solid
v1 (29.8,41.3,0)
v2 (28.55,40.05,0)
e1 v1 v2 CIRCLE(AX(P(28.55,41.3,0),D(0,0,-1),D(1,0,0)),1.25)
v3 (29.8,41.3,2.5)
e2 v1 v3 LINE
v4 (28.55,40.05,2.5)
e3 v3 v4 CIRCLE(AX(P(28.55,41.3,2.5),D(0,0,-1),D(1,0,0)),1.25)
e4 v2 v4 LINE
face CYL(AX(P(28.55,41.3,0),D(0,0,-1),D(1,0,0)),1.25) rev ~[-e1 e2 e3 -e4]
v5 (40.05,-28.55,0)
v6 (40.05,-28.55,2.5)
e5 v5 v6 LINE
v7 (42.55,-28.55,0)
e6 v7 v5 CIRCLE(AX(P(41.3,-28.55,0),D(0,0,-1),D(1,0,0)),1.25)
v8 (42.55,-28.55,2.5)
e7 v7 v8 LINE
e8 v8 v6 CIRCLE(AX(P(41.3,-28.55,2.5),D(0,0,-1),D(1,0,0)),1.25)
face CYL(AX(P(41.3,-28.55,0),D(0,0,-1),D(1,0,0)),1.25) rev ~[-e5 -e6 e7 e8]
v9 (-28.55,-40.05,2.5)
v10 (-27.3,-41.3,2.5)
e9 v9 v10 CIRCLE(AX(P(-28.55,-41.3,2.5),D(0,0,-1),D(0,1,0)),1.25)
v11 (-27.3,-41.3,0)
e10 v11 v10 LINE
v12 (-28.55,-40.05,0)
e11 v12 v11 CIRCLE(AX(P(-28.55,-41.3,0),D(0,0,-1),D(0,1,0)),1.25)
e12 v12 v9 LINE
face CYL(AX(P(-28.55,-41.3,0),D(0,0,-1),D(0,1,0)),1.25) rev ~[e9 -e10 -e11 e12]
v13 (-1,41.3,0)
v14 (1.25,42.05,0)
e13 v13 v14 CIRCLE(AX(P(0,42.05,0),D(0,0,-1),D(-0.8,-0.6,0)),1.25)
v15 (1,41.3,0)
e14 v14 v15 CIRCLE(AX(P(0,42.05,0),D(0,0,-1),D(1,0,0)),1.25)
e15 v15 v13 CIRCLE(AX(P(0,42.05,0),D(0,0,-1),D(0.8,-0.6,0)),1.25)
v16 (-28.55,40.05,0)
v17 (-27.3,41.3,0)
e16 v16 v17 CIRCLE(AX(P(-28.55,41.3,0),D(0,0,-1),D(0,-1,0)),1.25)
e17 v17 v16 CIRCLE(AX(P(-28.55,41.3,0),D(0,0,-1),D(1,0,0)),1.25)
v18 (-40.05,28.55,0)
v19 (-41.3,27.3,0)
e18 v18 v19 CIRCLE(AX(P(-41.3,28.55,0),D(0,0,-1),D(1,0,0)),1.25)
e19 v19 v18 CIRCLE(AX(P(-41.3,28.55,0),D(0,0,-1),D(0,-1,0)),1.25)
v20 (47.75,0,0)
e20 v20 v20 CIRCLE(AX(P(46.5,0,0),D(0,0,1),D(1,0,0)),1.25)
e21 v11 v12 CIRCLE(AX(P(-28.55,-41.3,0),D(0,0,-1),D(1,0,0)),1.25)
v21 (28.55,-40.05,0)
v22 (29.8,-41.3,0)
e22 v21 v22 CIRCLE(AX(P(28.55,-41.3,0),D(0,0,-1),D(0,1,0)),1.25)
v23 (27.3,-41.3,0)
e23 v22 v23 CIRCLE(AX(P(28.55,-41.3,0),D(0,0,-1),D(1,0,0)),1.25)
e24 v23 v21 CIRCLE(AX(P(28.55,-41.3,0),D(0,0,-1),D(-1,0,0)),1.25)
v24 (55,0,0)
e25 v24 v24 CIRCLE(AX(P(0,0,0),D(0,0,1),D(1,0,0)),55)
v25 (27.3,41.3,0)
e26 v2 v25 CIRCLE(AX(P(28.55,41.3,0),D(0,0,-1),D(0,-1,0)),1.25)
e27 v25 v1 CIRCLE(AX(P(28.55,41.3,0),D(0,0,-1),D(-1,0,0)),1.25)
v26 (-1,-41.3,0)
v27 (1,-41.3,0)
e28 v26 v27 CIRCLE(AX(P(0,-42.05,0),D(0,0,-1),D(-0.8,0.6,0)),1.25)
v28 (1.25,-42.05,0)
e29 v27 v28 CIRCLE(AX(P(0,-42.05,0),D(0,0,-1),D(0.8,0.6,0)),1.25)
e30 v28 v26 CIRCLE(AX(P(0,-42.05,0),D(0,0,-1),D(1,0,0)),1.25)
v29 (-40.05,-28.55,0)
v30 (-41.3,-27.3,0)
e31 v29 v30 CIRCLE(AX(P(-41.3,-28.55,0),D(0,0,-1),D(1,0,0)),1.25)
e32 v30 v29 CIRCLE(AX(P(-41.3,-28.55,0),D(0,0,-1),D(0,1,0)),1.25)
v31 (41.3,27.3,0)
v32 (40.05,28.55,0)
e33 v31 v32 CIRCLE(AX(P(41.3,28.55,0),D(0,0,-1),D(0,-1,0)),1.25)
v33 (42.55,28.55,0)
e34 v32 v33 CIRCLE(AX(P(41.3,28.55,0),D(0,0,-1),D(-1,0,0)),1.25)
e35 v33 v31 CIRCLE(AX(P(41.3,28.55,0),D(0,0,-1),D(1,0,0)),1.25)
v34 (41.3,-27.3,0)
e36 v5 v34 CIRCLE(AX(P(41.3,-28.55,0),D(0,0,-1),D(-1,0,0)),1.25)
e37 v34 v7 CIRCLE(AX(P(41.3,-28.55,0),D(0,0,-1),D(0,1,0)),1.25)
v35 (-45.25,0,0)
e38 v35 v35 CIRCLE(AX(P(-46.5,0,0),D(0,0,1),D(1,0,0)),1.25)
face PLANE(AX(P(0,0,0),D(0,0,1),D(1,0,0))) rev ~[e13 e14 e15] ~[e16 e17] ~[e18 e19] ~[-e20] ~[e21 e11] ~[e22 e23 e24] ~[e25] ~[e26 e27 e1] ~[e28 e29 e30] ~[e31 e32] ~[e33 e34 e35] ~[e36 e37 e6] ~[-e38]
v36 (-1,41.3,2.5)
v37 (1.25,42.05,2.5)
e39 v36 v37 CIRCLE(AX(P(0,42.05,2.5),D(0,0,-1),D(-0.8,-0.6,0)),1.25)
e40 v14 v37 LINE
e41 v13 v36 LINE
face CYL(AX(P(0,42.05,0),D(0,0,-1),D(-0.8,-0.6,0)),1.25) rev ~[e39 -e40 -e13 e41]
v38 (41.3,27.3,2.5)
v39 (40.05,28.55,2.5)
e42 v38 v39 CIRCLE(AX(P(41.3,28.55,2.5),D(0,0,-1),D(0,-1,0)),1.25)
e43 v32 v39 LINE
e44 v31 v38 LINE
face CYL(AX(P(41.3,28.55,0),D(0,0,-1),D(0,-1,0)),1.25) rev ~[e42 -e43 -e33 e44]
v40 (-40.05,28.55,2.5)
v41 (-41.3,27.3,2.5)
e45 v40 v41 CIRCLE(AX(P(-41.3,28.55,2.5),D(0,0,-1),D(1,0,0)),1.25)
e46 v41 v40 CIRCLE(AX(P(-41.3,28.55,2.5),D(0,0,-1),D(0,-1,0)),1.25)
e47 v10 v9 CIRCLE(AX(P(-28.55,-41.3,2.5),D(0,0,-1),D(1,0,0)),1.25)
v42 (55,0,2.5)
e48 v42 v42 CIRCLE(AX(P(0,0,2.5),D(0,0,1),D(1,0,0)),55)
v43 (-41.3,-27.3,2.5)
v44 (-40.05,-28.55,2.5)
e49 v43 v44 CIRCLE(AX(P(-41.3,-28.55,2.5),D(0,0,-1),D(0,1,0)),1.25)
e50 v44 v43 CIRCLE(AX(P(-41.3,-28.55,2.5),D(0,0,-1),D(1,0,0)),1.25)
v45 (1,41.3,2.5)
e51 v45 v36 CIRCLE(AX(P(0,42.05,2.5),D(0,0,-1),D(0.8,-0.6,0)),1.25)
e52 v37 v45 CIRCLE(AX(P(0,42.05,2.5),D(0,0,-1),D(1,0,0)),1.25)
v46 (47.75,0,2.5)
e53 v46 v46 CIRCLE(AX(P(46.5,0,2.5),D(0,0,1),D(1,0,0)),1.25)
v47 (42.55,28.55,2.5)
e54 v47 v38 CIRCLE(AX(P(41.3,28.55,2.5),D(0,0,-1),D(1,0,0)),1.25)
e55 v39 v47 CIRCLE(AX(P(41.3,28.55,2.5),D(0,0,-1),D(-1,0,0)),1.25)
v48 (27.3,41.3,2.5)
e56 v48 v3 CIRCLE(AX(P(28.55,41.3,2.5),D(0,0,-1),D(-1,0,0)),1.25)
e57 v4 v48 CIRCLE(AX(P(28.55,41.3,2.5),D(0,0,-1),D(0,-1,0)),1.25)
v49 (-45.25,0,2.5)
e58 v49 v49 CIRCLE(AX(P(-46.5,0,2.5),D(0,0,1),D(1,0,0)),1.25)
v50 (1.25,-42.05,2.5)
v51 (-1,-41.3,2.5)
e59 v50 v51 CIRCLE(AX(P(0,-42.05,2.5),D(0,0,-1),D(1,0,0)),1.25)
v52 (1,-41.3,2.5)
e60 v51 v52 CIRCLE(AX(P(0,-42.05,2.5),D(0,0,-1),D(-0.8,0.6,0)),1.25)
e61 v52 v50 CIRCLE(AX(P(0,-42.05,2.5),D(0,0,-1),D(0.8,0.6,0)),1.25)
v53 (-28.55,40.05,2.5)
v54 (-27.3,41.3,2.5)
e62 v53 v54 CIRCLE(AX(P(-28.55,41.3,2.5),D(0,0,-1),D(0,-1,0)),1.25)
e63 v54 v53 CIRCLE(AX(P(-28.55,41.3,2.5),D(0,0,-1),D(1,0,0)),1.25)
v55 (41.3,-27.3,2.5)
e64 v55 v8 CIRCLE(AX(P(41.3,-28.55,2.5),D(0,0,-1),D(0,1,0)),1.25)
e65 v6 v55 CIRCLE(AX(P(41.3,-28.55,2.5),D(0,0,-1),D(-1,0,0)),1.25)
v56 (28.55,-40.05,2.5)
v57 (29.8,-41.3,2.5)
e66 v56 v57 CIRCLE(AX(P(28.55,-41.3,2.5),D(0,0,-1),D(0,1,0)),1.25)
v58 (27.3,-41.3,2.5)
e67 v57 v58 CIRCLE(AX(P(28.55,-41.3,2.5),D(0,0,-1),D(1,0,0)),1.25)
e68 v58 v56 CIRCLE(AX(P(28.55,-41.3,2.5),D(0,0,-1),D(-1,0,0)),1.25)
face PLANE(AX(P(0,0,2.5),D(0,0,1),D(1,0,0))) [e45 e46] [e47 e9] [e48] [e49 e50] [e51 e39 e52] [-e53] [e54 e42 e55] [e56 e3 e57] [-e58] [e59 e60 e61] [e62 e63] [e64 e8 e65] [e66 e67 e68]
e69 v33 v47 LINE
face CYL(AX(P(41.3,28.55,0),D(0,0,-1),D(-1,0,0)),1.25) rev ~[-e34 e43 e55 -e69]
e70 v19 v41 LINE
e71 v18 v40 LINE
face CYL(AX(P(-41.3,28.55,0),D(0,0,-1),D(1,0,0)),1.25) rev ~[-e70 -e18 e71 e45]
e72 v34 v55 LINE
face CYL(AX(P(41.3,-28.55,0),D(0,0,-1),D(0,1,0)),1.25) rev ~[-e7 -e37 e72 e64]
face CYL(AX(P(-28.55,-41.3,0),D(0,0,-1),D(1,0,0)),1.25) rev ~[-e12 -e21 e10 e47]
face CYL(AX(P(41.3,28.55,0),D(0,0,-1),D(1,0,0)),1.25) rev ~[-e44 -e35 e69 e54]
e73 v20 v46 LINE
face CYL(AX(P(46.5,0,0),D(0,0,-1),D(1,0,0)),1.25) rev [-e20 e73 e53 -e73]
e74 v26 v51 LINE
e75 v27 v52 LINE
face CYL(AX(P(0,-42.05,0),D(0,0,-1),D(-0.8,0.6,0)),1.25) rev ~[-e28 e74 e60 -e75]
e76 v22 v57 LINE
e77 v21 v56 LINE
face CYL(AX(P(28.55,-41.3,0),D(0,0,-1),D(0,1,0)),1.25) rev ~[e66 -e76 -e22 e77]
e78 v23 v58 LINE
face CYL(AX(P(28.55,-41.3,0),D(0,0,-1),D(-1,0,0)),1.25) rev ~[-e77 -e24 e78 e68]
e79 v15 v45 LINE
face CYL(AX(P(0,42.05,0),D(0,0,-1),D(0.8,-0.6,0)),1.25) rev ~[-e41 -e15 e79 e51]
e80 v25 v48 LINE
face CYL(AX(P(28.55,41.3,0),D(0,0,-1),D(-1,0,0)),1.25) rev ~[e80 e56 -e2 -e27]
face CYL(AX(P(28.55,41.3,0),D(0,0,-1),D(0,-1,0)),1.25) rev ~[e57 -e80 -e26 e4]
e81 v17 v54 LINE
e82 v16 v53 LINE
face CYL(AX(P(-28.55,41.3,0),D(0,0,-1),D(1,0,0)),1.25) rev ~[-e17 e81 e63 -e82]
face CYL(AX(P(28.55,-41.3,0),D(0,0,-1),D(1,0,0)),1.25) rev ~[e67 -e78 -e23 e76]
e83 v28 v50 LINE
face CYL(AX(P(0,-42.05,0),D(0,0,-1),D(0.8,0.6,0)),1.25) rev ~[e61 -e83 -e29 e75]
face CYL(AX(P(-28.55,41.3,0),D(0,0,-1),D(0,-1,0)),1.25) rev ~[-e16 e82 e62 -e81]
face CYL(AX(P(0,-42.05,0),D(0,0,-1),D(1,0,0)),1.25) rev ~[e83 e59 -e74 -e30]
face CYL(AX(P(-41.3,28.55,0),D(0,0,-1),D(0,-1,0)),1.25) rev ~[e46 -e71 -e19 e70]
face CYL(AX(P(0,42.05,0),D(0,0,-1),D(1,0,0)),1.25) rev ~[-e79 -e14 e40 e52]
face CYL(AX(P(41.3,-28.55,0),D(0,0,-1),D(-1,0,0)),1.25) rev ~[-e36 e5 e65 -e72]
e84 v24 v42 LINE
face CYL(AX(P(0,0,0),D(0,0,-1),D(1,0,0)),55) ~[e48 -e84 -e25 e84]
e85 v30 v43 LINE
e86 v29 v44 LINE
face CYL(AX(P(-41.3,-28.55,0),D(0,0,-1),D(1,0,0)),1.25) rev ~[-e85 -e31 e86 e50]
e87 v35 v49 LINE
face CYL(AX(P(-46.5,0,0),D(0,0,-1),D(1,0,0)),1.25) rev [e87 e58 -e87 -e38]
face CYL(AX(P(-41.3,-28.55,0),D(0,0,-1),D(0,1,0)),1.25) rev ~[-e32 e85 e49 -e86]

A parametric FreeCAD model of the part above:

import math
import FreeCAD as App
import Part
import Sketcher

V = App.Vector
Q = App.Units.Quantity

doc = App.newDocument("Part")
body = doc.addObject("PartDesign::Body", "Body")

# Sketch on XY plane
sketch1 = body.newObject("Sketcher::SketchObject", "Sketch")
sketch1.AttachmentSupport = (doc.getObject("XY_Plane"), [""])
sketch1.MapMode = "FlatFace"
sketch1.addGeometry(Part.Circle(V(0, 0, 0), V(0, 0, 1), 55), False)
sketch1.addGeometry(Part.ArcOfCircle(Part.Circle(V(-41.3, -28.55, 0), V(0, 0, 1), 1.25), math.radians(90), math.radians(360)), False)
sketch1.addGeometry(Part.ArcOfCircle(Part.Circle(V(-41.3, -28.55, 0), V(0, 0, 1), 1.25), math.radians(0), math.radians(90)), False)
sketch1.addGeometry(Part.ArcOfCircle(Part.Circle(V(-28.55, -41.3, 0), V(0, 0, 1), 1.25), math.radians(90), math.radians(360)), False)
sketch1.addGeometry(Part.ArcOfCircle(Part.Circle(V(-28.55, -41.3, 0), V(0, 0, 1), 1.25), math.radians(0), math.radians(90)), False)
sketch1.addGeometry(Part.ArcOfCircle(Part.Circle(V(0, -42.05, 0), V(0, 0, 1), 1.25), math.radians(143.130102), math.radians(360)), False)
sketch1.addGeometry(Part.ArcOfCircle(Part.Circle(V(0, -42.05, 0), V(0, 0, 1), 1.25), math.radians(36.869898), math.radians(143.130102)), False)
sketch1.addGeometry(Part.ArcOfCircle(Part.Circle(V(0, -42.05, 0), V(0, 0, 1), 1.25), math.radians(0), math.radians(36.869898)), False)
sketch1.addGeometry(Part.ArcOfCircle(Part.Circle(V(28.55, -41.3, 0), V(0, 0, 1), 1.25), math.radians(180), math.radians(360)), False)
sketch1.addGeometry(Part.ArcOfCircle(Part.Circle(V(28.55, -41.3, 0), V(0, 0, 1), 1.25), math.radians(90), math.radians(180)), False)
sketch1.addGeometry(Part.ArcOfCircle(Part.Circle(V(28.55, -41.3, 0), V(0, 0, 1), 1.25), math.radians(0), math.radians(90)), False)
sketch1.addGeometry(Part.Circle(V(-46.5, 0, 0), V(0, 0, 1), 1.25), False)
sketch1.addGeometry(Part.ArcOfCircle(Part.Circle(V(-41.3, 28.55, 0), V(0, 0, 1), 1.25), math.radians(0), math.radians(270)), False)
sketch1.addGeometry(Part.ArcOfCircle(Part.Circle(V(-41.3, 28.55, 0), V(0, 0, 1), 1.25), math.radians(-90), math.radians(0)), False)
sketch1.addGeometry(Part.ArcOfCircle(Part.Circle(V(-28.55, 41.3, 0), V(0, 0, 1), 1.25), math.radians(0), math.radians(270)), False)
sketch1.addGeometry(Part.ArcOfCircle(Part.Circle(V(-28.55, 41.3, 0), V(0, 0, 1), 1.25), math.radians(-90), math.radians(0)), False)
sketch1.addGeometry(Part.ArcOfCircle(Part.Circle(V(0, 42.05, 0), V(0, 0, 1), 1.25), math.radians(0), math.radians(216.869898)), False)
sketch1.addGeometry(Part.ArcOfCircle(Part.Circle(V(0, 42.05, 0), V(0, 0, 1), 1.25), math.radians(-36.869898), math.radians(0)), False)
sketch1.addGeometry(Part.ArcOfCircle(Part.Circle(V(0, 42.05, 0), V(0, 0, 1), 1.25), math.radians(-143.130102), math.radians(-36.869898)), False)
sketch1.addGeometry(Part.ArcOfCircle(Part.Circle(V(41.3, 28.55, 0), V(0, 0, 1), 1.25), math.radians(0), math.radians(180)), False)
sketch1.addGeometry(Part.ArcOfCircle(Part.Circle(V(41.3, 28.55, 0), V(0, 0, 1), 1.25), math.radians(-90), math.radians(0)), False)
sketch1.addGeometry(Part.ArcOfCircle(Part.Circle(V(41.3, 28.55, 0), V(0, 0, 1), 1.25), math.radians(180), math.radians(270)), False)
sketch1.addGeometry(Part.ArcOfCircle(Part.Circle(V(41.3, -28.55, 0), V(0, 0, 1), 1.25), math.radians(0), math.radians(90)), False)
sketch1.addGeometry(Part.ArcOfCircle(Part.Circle(V(41.3, -28.55, 0), V(0, 0, 1), 1.25), math.radians(180), math.radians(360)), False)
sketch1.addGeometry(Part.ArcOfCircle(Part.Circle(V(41.3, -28.55, 0), V(0, 0, 1), 1.25), math.radians(90), math.radians(180)), False)
sketch1.addGeometry(Part.Circle(V(46.5, 0, 0), V(0, 0, 1), 1.25), False)
sketch1.addGeometry(Part.ArcOfCircle(Part.Circle(V(28.55, 41.3, 0), V(0, 0, 1), 1.25), math.radians(-90), math.radians(0)), False)
sketch1.addGeometry(Part.ArcOfCircle(Part.Circle(V(28.55, 41.3, 0), V(0, 0, 1), 1.25), math.radians(180), math.radians(270)), False)
sketch1.addGeometry(Part.ArcOfCircle(Part.Circle(V(28.55, 41.3, 0), V(0, 0, 1), 1.25), math.radians(0), math.radians(180)), False)
sketch1.addConstraint(Sketcher.Constraint("Tangent", 1, 1, 2, 2))
sketch1.addConstraint(Sketcher.Constraint("Coincident", 2, 1, 1, 2))
sketch1.addConstraint(Sketcher.Constraint("Tangent", 3, 1, 4, 2))
sketch1.addConstraint(Sketcher.Constraint("Coincident", 4, 1, 3, 2))
sketch1.addConstraint(Sketcher.Constraint("Tangent", 5, 1, 6, 2))
sketch1.addConstraint(Sketcher.Constraint("Tangent", 6, 1, 7, 2))
sketch1.addConstraint(Sketcher.Constraint("Tangent", 7, 1, 5, 2))
sketch1.addConstraint(Sketcher.Constraint("Tangent", 8, 1, 9, 2))
sketch1.addConstraint(Sketcher.Constraint("Tangent", 9, 1, 10, 2))
sketch1.addConstraint(Sketcher.Constraint("Tangent", 10, 1, 8, 2))
sketch1.addConstraint(Sketcher.Constraint("Tangent", 12, 1, 13, 2))
sketch1.addConstraint(Sketcher.Constraint("Coincident", 13, 1, 12, 2))
sketch1.addConstraint(Sketcher.Constraint("Tangent", 14, 1, 15, 2))
sketch1.addConstraint(Sketcher.Constraint("Coincident", 15, 1, 14, 2))
sketch1.addConstraint(Sketcher.Constraint("Tangent", 16, 1, 17, 2))
sketch1.addConstraint(Sketcher.Constraint("Tangent", 17, 1, 18, 2))
sketch1.addConstraint(Sketcher.Constraint("Tangent", 18, 1, 16, 2))
sketch1.addConstraint(Sketcher.Constraint("Tangent", 19, 1, 20, 2))
sketch1.addConstraint(Sketcher.Constraint("Tangent", 20, 1, 21, 2))
sketch1.addConstraint(Sketcher.Constraint("Tangent", 21, 1, 19, 2))
sketch1.addConstraint(Sketcher.Constraint("Tangent", 22, 1, 23, 2))
sketch1.addConstraint(Sketcher.Constraint("Tangent", 23, 1, 24, 2))
sketch1.addConstraint(Sketcher.Constraint("Tangent", 24, 1, 22, 2))
sketch1.addConstraint(Sketcher.Constraint("Tangent", 26, 1, 27, 2))
sketch1.addConstraint(Sketcher.Constraint("Tangent", 27, 1, 28, 2))
sketch1.addConstraint(Sketcher.Constraint("Tangent", 28, 1, 26, 2))
sketch1.addConstraint(Sketcher.Constraint("Coincident", 0, 3, -1, 1))
sketch1.addConstraint(Sketcher.Constraint("Equal", 2, 3))
sketch1.addConstraint(Sketcher.Constraint("Equal", 4, 5))
sketch1.addConstraint(Sketcher.Constraint("Equal", 7, 8))
sketch1.addConstraint(Sketcher.Constraint("Equal", 10, 11))
sketch1.addConstraint(Sketcher.Constraint("Equal", 11, 12))
sketch1.addConstraint(Sketcher.Constraint("Equal", 13, 14))
sketch1.addConstraint(Sketcher.Constraint("Equal", 15, 16))
sketch1.addConstraint(Sketcher.Constraint("Equal", 18, 19))
sketch1.addConstraint(Sketcher.Constraint("Equal", 21, 22))
sketch1.addConstraint(Sketcher.Constraint("Equal", 24, 25))
sketch1.addConstraint(Sketcher.Constraint("Equal", 25, 26))
sketch1.addConstraint(Sketcher.Constraint("Symmetric", 8, 3, 14, 3, -1, 1))
sketch1.addConstraint(Sketcher.Constraint("Symmetric", 5, 3, 16, 3, -1, 1))
sketch1.addConstraint(Sketcher.Constraint("Symmetric", 1, 3, 19, 3, -1, 1))
sketch1.addConstraint(Sketcher.Constraint("Symmetric", 12, 3, 22, 3, -1, 1))
sketch1.addConstraint(Sketcher.Constraint("Symmetric", 11, 3, 25, 3, -1, 1))
sketch1.addConstraint(Sketcher.Constraint("Symmetric", 3, 3, 26, 3, -1, 1))
sketch1.addConstraint(Sketcher.Constraint("Symmetric", 3, 3, 8, 3, -2))
sketch1.addConstraint(Sketcher.Constraint("Symmetric", 12, 3, 19, 3, -2))
sketch1.addConstraint(Sketcher.Constraint("Symmetric", 5, 1, 6, 1, -2))
sketch1.addConstraint(Sketcher.Constraint("PointOnObject", 11, 3, -1))
sketch1.addConstraint(Sketcher.Constraint("Horizontal", 24, 3, 2, 1))
sketch1.addConstraint(Sketcher.Constraint("Horizontal", 10, 3, 4, 1))
sketch1.addConstraint(Sketcher.Constraint("Horizontal", 4, 1, 5, 1))
sketch1.addConstraint(Sketcher.Constraint("Horizontal", 6, 3, 7, 1))
sketch1.addConstraint(Sketcher.Constraint("Horizontal", 6, 1, 8, 1))
sketch1.addConstraint(Sketcher.Constraint("Horizontal", 8, 1, 10, 1))
sketch1.addConstraint(Sketcher.Constraint("Horizontal", 21, 3, 12, 1))
sketch1.addConstraint(Sketcher.Constraint("Horizontal", 28, 3, 14, 1))
sketch1.addConstraint(Sketcher.Constraint("Horizontal", 18, 3, 16, 1))
sketch1.addConstraint(Sketcher.Constraint("Horizontal", 14, 1, 17, 1))
sketch1.addConstraint(Sketcher.Constraint("Horizontal", 17, 1, 18, 1))
sketch1.addConstraint(Sketcher.Constraint("Horizontal", 12, 1, 19, 1))
sketch1.addConstraint(Sketcher.Constraint("Horizontal", 19, 1, 21, 1))
sketch1.addConstraint(Sketcher.Constraint("Horizontal", 2, 1, 22, 1))
sketch1.addConstraint(Sketcher.Constraint("Horizontal", 22, 1, 23, 1))
sketch1.addConstraint(Sketcher.Constraint("Horizontal", 18, 1, 27, 1))
sketch1.addConstraint(Sketcher.Constraint("Horizontal", 27, 1, 28, 1))
sketch1.addConstraint(Sketcher.Constraint("Vertical", 13, 3, 1, 1))
sketch1.addConstraint(Sketcher.Constraint("Vertical", 15, 3, 3, 1))
sketch1.addConstraint(Sketcher.Constraint("Vertical", 28, 3, 9, 1))
sketch1.addConstraint(Sketcher.Constraint("Vertical", 1, 1, 13, 1))
sketch1.addConstraint(Sketcher.Constraint("Vertical", 3, 1, 15, 1))
sketch1.addConstraint(Sketcher.Constraint("Vertical", 24, 3, 20, 1))
sketch1.addConstraint(Sketcher.Constraint("Vertical", 20, 1, 24, 1))
sketch1.addConstraint(Sketcher.Constraint("Vertical", 9, 1, 26, 1))
sketch1.addConstraint(Sketcher.Constraint("Diameter", 0, Q("110 mm")))
sketch1.addConstraint(Sketcher.Constraint("Diameter", 11, Q("2.5 mm")))
sketch1.addConstraint(Sketcher.Constraint("DistanceX", 5, 1, -1, 1, Q("1 mm")))
sketch1.addConstraint(Sketcher.Constraint("DistanceY", 3, 3, 1, 1, Q("14 mm")))
sketch1.addConstraint(Sketcher.Constraint("DistanceX", 1, 3, 4, 1, Q("14 mm")))
sketch1.addConstraint(Sketcher.Constraint("DistanceX", 1, 3, -1, 1, Q("41.3 mm")))
sketch1.addConstraint(Sketcher.Constraint("DistanceY", 3, 3, -1, 1, Q("41.3 mm")))
sketch1.addConstraint(Sketcher.Constraint("DistanceX", 11, 3, -1, 1, Q("46.5 mm")))
pad1 = body.newObject("PartDesign::Pad", "Pad")
pad1.Profile = sketch1
pad1.Length = 2.5

doc.recompute()
